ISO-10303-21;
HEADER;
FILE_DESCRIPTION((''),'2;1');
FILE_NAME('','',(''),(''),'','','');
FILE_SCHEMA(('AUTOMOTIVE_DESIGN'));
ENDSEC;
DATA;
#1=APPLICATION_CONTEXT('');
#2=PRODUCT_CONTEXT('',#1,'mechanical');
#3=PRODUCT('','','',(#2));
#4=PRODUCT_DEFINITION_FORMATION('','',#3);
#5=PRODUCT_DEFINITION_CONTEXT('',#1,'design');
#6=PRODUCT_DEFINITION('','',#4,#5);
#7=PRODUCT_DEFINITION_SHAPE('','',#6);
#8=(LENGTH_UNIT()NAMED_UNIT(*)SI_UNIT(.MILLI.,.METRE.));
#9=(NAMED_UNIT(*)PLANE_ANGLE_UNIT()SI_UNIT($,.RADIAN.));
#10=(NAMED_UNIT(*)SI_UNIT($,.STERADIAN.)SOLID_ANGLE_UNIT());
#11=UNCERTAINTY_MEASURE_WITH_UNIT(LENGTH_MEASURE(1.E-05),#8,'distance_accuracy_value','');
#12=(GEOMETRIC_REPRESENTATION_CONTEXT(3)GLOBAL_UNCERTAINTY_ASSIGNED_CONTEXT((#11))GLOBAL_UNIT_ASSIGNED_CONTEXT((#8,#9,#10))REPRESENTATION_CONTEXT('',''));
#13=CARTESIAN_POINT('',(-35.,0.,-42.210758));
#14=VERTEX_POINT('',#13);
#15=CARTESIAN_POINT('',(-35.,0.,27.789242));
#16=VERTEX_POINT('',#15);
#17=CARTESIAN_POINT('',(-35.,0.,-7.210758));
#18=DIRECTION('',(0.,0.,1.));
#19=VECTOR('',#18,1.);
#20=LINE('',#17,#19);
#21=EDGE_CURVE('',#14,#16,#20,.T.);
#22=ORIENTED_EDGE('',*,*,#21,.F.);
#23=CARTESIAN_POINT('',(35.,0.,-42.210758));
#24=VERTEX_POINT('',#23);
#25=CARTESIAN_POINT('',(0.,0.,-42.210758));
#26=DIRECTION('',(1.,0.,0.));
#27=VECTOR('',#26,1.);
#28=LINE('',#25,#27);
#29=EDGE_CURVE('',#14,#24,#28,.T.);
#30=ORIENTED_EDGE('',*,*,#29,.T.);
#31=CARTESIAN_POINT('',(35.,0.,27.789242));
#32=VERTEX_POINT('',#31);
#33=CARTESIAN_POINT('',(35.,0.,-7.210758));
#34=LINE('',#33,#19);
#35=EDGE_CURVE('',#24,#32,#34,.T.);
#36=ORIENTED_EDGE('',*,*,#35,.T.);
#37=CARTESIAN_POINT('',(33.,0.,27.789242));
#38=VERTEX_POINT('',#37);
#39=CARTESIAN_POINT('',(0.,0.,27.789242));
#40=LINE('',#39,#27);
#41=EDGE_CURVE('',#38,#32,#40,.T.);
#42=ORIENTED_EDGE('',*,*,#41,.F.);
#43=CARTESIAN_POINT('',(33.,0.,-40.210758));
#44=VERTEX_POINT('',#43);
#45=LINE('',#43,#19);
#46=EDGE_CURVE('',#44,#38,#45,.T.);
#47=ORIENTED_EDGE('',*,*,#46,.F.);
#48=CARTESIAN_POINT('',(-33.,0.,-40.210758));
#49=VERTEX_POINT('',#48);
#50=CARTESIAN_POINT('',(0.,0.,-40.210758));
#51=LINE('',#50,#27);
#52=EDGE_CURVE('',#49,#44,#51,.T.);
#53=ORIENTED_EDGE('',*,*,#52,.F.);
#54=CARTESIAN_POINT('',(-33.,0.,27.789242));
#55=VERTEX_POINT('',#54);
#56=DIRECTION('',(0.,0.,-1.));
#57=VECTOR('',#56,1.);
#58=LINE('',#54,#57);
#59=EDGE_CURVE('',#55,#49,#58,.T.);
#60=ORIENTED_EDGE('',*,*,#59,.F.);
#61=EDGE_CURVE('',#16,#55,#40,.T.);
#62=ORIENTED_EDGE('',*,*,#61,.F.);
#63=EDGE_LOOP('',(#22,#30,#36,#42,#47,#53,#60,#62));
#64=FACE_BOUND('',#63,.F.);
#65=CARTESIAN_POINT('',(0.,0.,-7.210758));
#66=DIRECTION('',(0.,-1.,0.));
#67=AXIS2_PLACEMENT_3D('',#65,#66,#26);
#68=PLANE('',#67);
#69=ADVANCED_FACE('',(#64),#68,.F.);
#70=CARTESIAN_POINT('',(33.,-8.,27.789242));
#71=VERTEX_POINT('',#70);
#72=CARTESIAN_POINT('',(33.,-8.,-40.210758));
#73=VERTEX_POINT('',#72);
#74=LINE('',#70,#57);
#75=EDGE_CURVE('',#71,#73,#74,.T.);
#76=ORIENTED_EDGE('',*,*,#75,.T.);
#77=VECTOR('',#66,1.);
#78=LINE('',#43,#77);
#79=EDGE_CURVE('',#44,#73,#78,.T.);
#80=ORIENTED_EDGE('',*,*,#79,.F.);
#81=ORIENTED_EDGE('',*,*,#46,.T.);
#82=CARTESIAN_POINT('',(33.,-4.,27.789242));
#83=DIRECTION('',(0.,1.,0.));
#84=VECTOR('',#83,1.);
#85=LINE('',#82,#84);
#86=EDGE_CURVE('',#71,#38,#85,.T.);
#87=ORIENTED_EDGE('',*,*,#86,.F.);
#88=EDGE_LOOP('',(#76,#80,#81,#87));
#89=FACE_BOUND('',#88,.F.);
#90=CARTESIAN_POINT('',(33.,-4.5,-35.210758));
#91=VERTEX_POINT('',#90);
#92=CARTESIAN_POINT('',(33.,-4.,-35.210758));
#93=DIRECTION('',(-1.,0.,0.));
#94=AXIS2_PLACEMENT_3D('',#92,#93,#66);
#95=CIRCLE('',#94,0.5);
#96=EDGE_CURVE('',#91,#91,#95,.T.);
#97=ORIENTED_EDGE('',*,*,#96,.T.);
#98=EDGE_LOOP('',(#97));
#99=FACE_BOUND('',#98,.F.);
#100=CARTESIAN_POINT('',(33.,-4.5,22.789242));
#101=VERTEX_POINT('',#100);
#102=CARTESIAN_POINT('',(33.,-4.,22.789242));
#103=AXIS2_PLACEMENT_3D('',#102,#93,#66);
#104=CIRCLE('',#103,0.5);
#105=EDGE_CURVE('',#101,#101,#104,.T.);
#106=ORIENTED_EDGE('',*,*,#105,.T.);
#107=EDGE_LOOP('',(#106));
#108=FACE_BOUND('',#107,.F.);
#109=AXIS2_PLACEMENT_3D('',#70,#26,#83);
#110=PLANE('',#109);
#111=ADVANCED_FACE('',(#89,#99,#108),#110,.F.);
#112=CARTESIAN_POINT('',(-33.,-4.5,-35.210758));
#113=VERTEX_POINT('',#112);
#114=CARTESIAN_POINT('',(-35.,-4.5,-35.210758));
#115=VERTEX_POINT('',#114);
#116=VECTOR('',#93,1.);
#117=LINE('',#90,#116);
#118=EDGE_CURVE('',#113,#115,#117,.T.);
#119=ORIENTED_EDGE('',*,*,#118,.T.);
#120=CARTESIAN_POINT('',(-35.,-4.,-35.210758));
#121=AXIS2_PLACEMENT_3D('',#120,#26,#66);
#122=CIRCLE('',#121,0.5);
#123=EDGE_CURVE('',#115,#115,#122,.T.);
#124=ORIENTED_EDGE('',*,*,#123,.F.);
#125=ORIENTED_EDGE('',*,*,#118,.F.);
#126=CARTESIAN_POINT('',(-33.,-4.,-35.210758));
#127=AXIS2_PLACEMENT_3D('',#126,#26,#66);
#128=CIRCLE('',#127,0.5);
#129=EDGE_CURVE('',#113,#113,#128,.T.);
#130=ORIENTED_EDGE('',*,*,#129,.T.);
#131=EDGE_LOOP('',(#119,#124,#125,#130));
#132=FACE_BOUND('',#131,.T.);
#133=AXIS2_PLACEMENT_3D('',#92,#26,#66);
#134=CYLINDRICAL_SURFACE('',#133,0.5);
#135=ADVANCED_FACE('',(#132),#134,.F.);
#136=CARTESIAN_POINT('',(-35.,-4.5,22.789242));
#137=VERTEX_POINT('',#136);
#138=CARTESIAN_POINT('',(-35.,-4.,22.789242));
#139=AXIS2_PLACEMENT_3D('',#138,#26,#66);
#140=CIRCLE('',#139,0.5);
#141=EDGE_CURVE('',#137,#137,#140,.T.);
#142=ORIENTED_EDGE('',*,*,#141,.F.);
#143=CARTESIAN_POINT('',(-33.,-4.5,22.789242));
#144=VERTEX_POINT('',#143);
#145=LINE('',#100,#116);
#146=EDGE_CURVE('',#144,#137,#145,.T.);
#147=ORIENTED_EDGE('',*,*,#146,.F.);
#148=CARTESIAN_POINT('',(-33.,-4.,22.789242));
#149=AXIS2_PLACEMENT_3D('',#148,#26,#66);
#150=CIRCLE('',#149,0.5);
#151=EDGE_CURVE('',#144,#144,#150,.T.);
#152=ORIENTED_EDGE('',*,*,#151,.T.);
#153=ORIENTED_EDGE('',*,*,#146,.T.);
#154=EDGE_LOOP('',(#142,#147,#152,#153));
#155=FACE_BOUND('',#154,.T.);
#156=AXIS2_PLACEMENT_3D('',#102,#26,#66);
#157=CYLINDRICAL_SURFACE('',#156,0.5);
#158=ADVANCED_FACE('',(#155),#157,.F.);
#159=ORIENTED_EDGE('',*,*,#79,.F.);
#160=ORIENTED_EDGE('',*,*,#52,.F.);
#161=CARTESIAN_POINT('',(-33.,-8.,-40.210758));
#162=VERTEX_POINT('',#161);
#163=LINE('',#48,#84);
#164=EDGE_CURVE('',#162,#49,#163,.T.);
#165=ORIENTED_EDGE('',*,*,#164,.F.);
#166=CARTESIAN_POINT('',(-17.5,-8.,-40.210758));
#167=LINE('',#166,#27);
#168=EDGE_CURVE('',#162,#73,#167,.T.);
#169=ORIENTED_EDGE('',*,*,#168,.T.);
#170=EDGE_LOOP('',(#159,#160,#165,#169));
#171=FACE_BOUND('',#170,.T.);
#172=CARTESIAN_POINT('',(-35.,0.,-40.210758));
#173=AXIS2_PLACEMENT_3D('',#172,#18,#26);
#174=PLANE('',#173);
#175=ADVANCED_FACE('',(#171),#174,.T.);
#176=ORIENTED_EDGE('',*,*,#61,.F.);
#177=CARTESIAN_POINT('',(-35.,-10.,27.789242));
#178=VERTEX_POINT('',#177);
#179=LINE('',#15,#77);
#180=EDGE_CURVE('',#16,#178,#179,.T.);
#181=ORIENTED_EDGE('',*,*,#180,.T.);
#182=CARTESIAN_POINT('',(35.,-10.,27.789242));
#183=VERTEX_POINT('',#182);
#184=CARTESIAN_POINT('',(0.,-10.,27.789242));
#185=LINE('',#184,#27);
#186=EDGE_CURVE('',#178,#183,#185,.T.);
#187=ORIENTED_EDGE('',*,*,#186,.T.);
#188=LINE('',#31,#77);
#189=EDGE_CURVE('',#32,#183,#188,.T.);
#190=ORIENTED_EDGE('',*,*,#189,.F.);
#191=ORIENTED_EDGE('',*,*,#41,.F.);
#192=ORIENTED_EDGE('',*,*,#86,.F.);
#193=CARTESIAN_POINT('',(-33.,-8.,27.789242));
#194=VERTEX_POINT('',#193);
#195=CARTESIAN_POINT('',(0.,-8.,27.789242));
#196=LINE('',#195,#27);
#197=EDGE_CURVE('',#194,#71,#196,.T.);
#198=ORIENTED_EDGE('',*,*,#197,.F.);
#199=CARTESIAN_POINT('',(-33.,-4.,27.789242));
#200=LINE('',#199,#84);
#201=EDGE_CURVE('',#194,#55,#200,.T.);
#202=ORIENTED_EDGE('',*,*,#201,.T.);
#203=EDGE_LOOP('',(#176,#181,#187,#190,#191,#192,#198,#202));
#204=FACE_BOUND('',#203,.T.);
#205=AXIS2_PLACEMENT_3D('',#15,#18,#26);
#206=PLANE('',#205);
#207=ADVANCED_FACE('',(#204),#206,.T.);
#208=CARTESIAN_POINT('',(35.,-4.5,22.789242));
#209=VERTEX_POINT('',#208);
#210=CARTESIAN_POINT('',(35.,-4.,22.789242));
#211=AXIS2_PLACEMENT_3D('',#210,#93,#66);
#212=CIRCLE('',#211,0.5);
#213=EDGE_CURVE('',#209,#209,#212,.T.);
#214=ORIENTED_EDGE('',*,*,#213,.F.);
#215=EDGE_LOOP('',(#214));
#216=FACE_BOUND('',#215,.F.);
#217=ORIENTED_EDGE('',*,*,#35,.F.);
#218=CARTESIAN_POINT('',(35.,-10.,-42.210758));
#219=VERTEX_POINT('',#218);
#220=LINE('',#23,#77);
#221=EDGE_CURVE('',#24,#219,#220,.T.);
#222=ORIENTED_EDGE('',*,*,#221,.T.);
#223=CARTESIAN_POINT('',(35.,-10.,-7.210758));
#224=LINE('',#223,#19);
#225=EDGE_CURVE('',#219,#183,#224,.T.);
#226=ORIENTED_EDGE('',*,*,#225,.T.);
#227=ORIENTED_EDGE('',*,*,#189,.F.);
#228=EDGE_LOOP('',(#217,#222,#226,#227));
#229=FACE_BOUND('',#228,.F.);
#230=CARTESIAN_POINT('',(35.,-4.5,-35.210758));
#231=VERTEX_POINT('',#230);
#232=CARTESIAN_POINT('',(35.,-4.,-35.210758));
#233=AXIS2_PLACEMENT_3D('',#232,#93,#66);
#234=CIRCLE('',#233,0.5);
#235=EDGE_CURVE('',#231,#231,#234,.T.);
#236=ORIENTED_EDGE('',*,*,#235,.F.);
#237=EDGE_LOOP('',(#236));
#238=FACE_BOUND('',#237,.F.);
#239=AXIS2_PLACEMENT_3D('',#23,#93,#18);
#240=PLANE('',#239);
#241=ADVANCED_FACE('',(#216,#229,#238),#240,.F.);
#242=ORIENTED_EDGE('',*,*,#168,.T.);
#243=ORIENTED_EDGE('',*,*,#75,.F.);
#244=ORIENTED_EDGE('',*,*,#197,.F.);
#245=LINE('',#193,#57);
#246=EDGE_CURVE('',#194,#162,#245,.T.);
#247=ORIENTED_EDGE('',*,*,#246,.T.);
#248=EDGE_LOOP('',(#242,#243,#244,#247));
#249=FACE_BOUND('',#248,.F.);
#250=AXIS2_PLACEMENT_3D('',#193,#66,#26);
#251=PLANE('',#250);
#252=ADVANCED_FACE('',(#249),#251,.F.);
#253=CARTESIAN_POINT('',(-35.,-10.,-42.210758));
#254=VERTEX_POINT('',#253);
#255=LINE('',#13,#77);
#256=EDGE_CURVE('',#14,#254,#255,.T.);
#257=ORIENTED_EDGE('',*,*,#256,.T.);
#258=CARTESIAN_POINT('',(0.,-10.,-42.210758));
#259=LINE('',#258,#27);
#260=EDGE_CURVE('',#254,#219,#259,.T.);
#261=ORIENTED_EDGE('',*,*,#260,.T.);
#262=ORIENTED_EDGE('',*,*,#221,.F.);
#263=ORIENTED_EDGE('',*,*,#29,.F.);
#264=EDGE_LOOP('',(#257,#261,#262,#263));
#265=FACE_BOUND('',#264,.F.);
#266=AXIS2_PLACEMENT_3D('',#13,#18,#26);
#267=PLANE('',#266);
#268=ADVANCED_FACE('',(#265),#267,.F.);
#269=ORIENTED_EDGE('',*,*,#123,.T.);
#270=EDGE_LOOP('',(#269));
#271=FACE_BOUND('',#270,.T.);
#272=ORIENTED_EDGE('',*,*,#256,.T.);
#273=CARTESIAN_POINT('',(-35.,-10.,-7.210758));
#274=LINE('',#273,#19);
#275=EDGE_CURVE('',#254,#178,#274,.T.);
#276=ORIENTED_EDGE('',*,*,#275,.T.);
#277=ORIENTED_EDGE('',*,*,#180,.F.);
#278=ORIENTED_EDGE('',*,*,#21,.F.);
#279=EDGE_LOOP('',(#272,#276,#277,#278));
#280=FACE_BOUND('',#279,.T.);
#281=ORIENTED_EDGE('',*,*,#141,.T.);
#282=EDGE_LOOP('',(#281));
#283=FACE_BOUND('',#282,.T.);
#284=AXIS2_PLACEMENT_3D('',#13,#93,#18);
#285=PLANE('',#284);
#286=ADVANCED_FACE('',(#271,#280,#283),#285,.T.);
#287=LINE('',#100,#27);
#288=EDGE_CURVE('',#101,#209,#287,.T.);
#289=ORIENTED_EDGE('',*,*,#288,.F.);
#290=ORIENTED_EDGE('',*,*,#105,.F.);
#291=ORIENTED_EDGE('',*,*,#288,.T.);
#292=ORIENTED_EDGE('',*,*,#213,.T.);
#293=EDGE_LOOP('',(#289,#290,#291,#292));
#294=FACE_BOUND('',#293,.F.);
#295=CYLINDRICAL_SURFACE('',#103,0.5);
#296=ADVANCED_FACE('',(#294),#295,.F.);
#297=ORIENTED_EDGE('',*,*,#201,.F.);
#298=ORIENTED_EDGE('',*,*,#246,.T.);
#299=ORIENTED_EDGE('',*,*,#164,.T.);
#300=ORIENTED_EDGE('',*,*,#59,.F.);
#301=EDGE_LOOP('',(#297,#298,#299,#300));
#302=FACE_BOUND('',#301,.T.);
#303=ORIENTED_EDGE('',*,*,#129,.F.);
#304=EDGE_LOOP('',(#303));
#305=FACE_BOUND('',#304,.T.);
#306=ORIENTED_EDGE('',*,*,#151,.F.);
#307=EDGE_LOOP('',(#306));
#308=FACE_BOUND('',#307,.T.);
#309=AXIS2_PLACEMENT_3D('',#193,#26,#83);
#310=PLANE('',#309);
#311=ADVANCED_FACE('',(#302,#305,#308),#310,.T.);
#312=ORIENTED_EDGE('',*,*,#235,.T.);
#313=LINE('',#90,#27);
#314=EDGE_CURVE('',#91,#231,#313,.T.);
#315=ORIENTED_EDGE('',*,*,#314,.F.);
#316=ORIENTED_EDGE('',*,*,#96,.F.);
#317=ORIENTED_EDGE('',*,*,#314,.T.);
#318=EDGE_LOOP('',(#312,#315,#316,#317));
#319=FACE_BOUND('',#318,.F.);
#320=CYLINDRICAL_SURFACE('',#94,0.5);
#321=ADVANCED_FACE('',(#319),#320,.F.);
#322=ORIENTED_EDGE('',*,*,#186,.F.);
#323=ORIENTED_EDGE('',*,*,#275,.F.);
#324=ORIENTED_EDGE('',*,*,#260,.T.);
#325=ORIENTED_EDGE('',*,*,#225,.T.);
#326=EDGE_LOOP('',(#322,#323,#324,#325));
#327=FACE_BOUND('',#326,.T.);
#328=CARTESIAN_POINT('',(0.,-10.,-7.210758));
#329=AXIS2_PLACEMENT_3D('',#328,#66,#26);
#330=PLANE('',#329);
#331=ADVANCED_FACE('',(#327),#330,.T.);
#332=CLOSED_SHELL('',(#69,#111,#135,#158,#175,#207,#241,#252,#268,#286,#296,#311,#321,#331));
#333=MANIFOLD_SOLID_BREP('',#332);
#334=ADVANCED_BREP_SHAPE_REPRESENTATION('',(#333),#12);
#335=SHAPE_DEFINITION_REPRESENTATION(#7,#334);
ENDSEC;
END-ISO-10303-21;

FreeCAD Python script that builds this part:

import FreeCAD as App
import Part
import Sketcher
from FreeCAD import Vector
Q = App.Units.Quantity


def faces_at(feature, points):
    """Names of the faces that lie closest to the given points."""
    faces = feature.Shape.Faces
    near = lambda p: min(range(len(faces)), key=lambda i: faces[i].distToShape(Part.Vertex(*p))[0])
    return sorted({f"Face{near(p) + 1}" for p in points})


def add_polygon(sketch, points):
    """Adds a closed chain of lines whose ends are joined by coincident constraints."""
    first, n = sketch.GeometryCount, len(points)
    for a, b in zip(points, points[1:] + points[:1]):
        sketch.addGeometry(Part.LineSegment(App.Vector(*a, 0), App.Vector(*b, 0)), False)
    for i in range(n):
        sketch.addConstraint(Sketcher.Constraint("Coincident", first + i, 2, first + (i + 1) % n, 1))

doc = App.newDocument("Part")
body = doc.addObject("PartDesign::Body", "Body")

# Sketch on XZ plane
sketch1 = doc.addObject("Sketcher::SketchObject", "Sketch")
body.addObject(sketch1)
sketch1.AttachmentSupport = (doc.XZ_Plane, [""])
sketch1.MapMode = "FlatFace"
add_polygon(sketch1, [(-35, 28), (-35, -42), (35, -42), (35, 28)])  # lines 0-3
sketch1.addConstraint(Sketcher.Constraint("Vertical", 0))
sketch1.addConstraint(Sketcher.Constraint("Horizontal", 1))
sketch1.addConstraint(Sketcher.Constraint("Vertical", 2))
sketch1.addConstraint(Sketcher.Constraint("Horizontal", 3))
sketch1.addConstraint(Sketcher.Constraint("Equal", 3, 0))
sketch1.addConstraint(Sketcher.Constraint("DistanceX", 1, 1, 1, 2, Q("70 mm")))
sketch1.addConstraint(Sketcher.Constraint("DistanceX", 0, 2, -1, 1, Q("35 mm")))
sketch1.addConstraint(Sketcher.Constraint("DistanceY", 0, 2, -1, 1, Q("42.210758 mm")))
pad1 = doc.addObject("PartDesign::Pad", "Pad")
body.addObject(pad1)
pad1.Profile = sketch1
pad1.Length = 10
doc.recompute()

thickness = doc.addObject("PartDesign::Thickness", "Thickness")
body.addObject(thickness)
thickness.Base = (pad1, faces_at(pad1, [(0, 0, -7.211)]))
thickness.Value = 2
thickness.Reversed = True
thickness.Join = "Arc"

# Sketch on XY plane
sketch2 = doc.addObject("Sketcher::SketchObject", "Sketch001")
body.addObject(sketch2)
sketch2.AttachmentSupport = (doc.XY_Plane, [""])
sketch2.MapMode = "FlatFace"
sketch2.AttachmentOffset = App.Placement(Vector(0, 0, 27.789242), App.Rotation())
add_polygon(sketch2, [(-33, 0), (-33, -8), (33, -8), (33, 0)])  # lines 0-3
sketch2.addConstraint(Sketcher.Constraint("Vertical", 0))
sketch2.addConstraint(Sketcher.Constraint("Horizontal", 1))
sketch2.addConstraint(Sketcher.Constraint("Vertical", 2))
sketch2.addConstraint(Sketcher.Constraint("Horizontal", 3))
sketch2.addConstraint(Sketcher.Constraint("Symmetric", 2, 2, 3, 2, -1, 1))
sketch2.addConstraint(Sketcher.Constraint("DistanceX", 1, 1, 1, 2, Q("66 mm")))
sketch2.addConstraint(Sketcher.Constraint("DistanceY", 0, 2, 0, 1, Q("8 mm")))
pocket1 = doc.addObject("PartDesign::Pocket", "Pocket")
body.addObject(pocket1)
pocket1.Profile = sketch2
pocket1.Length = 4.32812

# Sketch on YZ plane
sketch3 = doc.addObject("Sketcher::SketchObject", "Sketch002")
body.addObject(sketch3)
sketch3.AttachmentSupport = (doc.YZ_Plane, [""])
sketch3.MapMode = "FlatFace"
sketch3.AttachmentOffset = App.Placement(Vector(0, 0, 33), App.Rotation())
sketch3.addGeometry(Part.Circle(Vector(-4, 22.8, 0), Vector(0, 0, 1), 0.5), False)
sketch3.addGeometry(Part.Circle(Vector(-4, -35.2, 0), Vector(0, 0, 1), 0.5), False)
sketch3.addConstraint(Sketcher.Constraint("Equal", 0, 1))
sketch3.addConstraint(Sketcher.Constraint("Vertical", 0, 3, 1, 3))
sketch3.addConstraint(Sketcher.Constraint("Diameter", 0, Q("1 mm")))
sketch3.addConstraint(Sketcher.Constraint("DistanceX", 0, 3, -1, 1, Q("4 mm")))
sketch3.addConstraint(Sketcher.Constraint("DistanceY", 1, 3, 0, 3, Q("58 mm")))
sketch3.addConstraint(Sketcher.Constraint("DistanceY", -1, 1, 0, 3, Q("22.789242 mm")))
pocket2 = doc.addObject("PartDesign::Pocket", "Pocket001")
body.addObject(pocket2)
pocket2.Profile = sketch3
pocket2.Type = "ThroughAll"
pocket2.Midplane = True

doc.recompute()
